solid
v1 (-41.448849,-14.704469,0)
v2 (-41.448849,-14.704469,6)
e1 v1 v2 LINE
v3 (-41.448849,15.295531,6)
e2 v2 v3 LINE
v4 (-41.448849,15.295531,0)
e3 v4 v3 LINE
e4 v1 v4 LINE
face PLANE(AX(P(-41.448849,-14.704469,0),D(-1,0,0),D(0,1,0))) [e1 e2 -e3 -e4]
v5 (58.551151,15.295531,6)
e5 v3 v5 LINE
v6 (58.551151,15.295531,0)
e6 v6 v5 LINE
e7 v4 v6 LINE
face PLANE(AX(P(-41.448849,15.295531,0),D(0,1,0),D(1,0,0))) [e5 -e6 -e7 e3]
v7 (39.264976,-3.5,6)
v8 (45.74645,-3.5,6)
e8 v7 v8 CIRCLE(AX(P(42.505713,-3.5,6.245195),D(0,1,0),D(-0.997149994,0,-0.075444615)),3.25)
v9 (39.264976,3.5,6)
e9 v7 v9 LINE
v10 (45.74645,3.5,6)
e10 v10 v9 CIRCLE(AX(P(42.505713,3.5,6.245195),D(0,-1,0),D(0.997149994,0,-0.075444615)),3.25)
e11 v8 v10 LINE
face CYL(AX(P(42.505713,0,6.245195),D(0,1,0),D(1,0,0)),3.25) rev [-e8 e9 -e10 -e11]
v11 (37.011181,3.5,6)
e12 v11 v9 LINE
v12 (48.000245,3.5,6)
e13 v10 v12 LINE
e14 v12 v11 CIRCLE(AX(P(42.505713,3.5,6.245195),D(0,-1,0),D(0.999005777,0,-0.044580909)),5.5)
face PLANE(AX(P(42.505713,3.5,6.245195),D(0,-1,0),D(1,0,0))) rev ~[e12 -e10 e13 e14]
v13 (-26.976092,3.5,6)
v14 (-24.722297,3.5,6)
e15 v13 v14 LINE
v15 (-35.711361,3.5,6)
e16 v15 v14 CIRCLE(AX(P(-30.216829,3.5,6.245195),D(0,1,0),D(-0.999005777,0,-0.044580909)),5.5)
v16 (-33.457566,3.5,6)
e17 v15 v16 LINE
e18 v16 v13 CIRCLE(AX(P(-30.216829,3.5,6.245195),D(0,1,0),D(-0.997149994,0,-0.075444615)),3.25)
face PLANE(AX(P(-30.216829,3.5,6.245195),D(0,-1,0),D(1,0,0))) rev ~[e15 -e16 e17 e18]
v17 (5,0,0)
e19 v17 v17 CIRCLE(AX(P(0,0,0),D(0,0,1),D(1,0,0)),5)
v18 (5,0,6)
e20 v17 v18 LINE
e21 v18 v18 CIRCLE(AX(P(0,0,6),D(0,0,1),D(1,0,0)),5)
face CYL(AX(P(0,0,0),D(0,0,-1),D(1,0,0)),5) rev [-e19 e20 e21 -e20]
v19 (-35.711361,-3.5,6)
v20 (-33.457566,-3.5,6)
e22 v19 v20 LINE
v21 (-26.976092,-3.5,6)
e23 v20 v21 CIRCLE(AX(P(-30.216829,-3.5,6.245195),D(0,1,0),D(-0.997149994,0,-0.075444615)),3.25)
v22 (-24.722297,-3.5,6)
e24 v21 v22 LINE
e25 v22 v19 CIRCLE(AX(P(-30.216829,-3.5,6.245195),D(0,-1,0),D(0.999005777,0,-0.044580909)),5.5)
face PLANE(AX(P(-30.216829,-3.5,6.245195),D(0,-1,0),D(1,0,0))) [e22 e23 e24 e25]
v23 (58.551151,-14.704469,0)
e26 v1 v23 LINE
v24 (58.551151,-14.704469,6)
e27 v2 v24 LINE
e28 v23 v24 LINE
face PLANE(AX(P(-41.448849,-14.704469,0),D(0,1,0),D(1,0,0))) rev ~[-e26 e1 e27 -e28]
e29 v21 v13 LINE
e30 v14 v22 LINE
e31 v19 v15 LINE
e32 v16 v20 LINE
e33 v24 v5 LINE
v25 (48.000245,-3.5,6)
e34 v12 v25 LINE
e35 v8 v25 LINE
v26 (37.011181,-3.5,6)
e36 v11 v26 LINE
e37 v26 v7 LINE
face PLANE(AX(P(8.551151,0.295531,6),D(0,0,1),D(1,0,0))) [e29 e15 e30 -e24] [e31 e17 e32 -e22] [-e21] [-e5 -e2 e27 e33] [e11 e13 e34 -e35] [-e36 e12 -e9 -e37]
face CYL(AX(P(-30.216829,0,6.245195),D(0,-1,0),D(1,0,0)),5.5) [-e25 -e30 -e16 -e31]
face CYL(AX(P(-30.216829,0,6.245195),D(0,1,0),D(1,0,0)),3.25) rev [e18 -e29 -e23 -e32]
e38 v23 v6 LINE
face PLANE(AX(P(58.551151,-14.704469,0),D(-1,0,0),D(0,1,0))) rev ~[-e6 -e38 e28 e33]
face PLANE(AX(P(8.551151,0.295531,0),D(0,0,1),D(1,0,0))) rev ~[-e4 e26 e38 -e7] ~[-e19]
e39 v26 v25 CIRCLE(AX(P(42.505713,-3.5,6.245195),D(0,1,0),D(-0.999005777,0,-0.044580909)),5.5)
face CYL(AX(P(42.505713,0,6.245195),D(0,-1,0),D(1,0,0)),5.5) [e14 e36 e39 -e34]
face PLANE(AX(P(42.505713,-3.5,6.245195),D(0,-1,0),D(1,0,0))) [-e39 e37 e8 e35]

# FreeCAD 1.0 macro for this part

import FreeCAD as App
import Part
import Sketcher

doc = App.newDocument("Part")
params = doc.addObject("Spreadsheet::Sheet", "Params")
for row, (alias, value) in enumerate([
    ("sketch1_diameter", "10 mm"),
    ("sketch1_width", "100 mm"),
    ("sketch1_height", "30 mm"),
    ("pad1_length", "6 mm"),
    ("sketch2_diameter", "11 mm"),
    ("sketch2_diameter2", "6.5 mm"),
    ("pad2_length", "7 mm"),
], start=1):
    params.set(f"A{row}", alias)
    params.set(f"B{row}", "=" + value)
    params.setAlias(f"B{row}", alias)

body = doc.addObject("PartDesign::Body", "Body")

sketch1 = body.newObject("Sketcher::SketchObject", "Sketch")
sketch1.AttachmentSupport = (doc.getObject("XY_Plane"), [""])
sketch1.MapMode = "FlatFace"
sketch1.addGeometry(Part.LineSegment(App.Vector(-41.448849, 15.295531, 0), App.Vector(-41.448849, -14.704469, 0)), False)
sketch1.addGeometry(Part.LineSegment(App.Vector(-41.448849, -14.704469, 0), App.Vector(58.551151, -14.704469, 0)), False)
sketch1.addGeometry(Part.LineSegment(App.Vector(58.551151, -14.704469, 0), App.Vector(58.551151, 15.295531, 0)), False)
sketch1.addGeometry(Part.LineSegment(App.Vector(58.551151, 15.295531, 0), App.Vector(-41.448849, 15.295531, 0)), False)
sketch1.addGeometry(Part.Circle(App.Vector(0, 0, 0), App.Vector(0, 0, 1), 5), False)
sketch1.addConstraint(Sketcher.Constraint("Coincident", 0, 2, 1, 1))
sketch1.addConstraint(Sketcher.Constraint("Coincident", 1, 2, 2, 1))
sketch1.addConstraint(Sketcher.Constraint("Coincident", 2, 2, 3, 1))
sketch1.addConstraint(Sketcher.Constraint("Coincident", 3, 2, 0, 1))
sketch1.addConstraint(Sketcher.Constraint("Vertical", 0))
sketch1.addConstraint(Sketcher.Constraint("Horizontal", 1))
sketch1.addConstraint(Sketcher.Constraint("Vertical", 2))
sketch1.addConstraint(Sketcher.Constraint("Horizontal", 3))
sketch1.addConstraint(Sketcher.Constraint("Coincident", 4, 3, -1, 1))
sketch1.addConstraint(Sketcher.Constraint("Diameter", 4, 10.0))
sketch1.addConstraint(Sketcher.Constraint("DistanceX", 1, 1, 1, 2, 100.0))
sketch1.addConstraint(Sketcher.Constraint("DistanceY", 0, 2, 0, 1, 30.0))
sketch1.addConstraint(Sketcher.Constraint("DistanceX", 0, 2, -1, 1, 41.448849))
sketch1.addConstraint(Sketcher.Constraint("DistanceY", 0, 2, -1, 1, 14.704469))
sketch1.setExpression("Constraints[9]", "Params.sketch1_diameter")
sketch1.setExpression("Constraints[10]", "Params.sketch1_width")
sketch1.setExpression("Constraints[11]", "Params.sketch1_height")
pad1 = body.newObject("PartDesign::Pad", "Pad")
pad1.Profile = sketch1
pad1.setExpression("Length", "Params.pad1_length")

sketch2 = body.newObject("Sketcher::SketchObject", "Sketch001")
sketch2.AttachmentSupport = (doc.getObject("XZ_Plane"), [""])
sketch2.MapMode = "FlatFace"
sketch2.addGeometry(Part.Circle(App.Vector(-30.216829, 6.245195, 0), App.Vector(0, 0, 1), 5.5), False)
sketch2.addGeometry(Part.Circle(App.Vector(-30.216829, 6.245195, 0), App.Vector(0, 0, 1), 3.25), False)
sketch2.addGeometry(Part.Circle(App.Vector(42.505713, 6.245195, 0), App.Vector(0, 0, 1), 5.5), False)
sketch2.addGeometry(Part.Circle(App.Vector(42.505713, 6.245195, 0), App.Vector(0, 0, 1), 3.25), False)
sketch2.addConstraint(Sketcher.Constraint("Coincident", 1, 3, 0, 3))
sketch2.addConstraint(Sketcher.Constraint("Coincident", 3, 3, 2, 3))
sketch2.addConstraint(Sketcher.Constraint("Equal", 0, 2))
sketch2.addConstraint(Sketcher.Constraint("Equal", 1, 3))
sketch2.addConstraint(Sketcher.Constraint("Horizontal", 1, 3, 2, 3))
sketch2.addConstraint(Sketcher.Constraint("Diameter", 0, 11.0))
sketch2.addConstraint(Sketcher.Constraint("Diameter", 1, 6.5))
sketch2.addConstraint(Sketcher.Constraint("DistanceX", 0, 3, -1, 1, 30.216829))
sketch2.addConstraint(Sketcher.Constraint("DistanceY", -1, 1, 0, 3, 6.245195))
sketch2.addConstraint(Sketcher.Constraint("DistanceX", -1, 1, 2, 3, 42.505713))
sketch2.setExpression("Constraints[5]", "Params.sketch2_diameter")
sketch2.setExpression("Constraints[6]", "Params.sketch2_diameter2")
pad2 = body.newObject("PartDesign::Pad", "Pad001")
pad2.Profile = sketch2
pad2.setExpression("Length", "Params.pad2_length")
pad2.Midplane = True

doc.recompute()
